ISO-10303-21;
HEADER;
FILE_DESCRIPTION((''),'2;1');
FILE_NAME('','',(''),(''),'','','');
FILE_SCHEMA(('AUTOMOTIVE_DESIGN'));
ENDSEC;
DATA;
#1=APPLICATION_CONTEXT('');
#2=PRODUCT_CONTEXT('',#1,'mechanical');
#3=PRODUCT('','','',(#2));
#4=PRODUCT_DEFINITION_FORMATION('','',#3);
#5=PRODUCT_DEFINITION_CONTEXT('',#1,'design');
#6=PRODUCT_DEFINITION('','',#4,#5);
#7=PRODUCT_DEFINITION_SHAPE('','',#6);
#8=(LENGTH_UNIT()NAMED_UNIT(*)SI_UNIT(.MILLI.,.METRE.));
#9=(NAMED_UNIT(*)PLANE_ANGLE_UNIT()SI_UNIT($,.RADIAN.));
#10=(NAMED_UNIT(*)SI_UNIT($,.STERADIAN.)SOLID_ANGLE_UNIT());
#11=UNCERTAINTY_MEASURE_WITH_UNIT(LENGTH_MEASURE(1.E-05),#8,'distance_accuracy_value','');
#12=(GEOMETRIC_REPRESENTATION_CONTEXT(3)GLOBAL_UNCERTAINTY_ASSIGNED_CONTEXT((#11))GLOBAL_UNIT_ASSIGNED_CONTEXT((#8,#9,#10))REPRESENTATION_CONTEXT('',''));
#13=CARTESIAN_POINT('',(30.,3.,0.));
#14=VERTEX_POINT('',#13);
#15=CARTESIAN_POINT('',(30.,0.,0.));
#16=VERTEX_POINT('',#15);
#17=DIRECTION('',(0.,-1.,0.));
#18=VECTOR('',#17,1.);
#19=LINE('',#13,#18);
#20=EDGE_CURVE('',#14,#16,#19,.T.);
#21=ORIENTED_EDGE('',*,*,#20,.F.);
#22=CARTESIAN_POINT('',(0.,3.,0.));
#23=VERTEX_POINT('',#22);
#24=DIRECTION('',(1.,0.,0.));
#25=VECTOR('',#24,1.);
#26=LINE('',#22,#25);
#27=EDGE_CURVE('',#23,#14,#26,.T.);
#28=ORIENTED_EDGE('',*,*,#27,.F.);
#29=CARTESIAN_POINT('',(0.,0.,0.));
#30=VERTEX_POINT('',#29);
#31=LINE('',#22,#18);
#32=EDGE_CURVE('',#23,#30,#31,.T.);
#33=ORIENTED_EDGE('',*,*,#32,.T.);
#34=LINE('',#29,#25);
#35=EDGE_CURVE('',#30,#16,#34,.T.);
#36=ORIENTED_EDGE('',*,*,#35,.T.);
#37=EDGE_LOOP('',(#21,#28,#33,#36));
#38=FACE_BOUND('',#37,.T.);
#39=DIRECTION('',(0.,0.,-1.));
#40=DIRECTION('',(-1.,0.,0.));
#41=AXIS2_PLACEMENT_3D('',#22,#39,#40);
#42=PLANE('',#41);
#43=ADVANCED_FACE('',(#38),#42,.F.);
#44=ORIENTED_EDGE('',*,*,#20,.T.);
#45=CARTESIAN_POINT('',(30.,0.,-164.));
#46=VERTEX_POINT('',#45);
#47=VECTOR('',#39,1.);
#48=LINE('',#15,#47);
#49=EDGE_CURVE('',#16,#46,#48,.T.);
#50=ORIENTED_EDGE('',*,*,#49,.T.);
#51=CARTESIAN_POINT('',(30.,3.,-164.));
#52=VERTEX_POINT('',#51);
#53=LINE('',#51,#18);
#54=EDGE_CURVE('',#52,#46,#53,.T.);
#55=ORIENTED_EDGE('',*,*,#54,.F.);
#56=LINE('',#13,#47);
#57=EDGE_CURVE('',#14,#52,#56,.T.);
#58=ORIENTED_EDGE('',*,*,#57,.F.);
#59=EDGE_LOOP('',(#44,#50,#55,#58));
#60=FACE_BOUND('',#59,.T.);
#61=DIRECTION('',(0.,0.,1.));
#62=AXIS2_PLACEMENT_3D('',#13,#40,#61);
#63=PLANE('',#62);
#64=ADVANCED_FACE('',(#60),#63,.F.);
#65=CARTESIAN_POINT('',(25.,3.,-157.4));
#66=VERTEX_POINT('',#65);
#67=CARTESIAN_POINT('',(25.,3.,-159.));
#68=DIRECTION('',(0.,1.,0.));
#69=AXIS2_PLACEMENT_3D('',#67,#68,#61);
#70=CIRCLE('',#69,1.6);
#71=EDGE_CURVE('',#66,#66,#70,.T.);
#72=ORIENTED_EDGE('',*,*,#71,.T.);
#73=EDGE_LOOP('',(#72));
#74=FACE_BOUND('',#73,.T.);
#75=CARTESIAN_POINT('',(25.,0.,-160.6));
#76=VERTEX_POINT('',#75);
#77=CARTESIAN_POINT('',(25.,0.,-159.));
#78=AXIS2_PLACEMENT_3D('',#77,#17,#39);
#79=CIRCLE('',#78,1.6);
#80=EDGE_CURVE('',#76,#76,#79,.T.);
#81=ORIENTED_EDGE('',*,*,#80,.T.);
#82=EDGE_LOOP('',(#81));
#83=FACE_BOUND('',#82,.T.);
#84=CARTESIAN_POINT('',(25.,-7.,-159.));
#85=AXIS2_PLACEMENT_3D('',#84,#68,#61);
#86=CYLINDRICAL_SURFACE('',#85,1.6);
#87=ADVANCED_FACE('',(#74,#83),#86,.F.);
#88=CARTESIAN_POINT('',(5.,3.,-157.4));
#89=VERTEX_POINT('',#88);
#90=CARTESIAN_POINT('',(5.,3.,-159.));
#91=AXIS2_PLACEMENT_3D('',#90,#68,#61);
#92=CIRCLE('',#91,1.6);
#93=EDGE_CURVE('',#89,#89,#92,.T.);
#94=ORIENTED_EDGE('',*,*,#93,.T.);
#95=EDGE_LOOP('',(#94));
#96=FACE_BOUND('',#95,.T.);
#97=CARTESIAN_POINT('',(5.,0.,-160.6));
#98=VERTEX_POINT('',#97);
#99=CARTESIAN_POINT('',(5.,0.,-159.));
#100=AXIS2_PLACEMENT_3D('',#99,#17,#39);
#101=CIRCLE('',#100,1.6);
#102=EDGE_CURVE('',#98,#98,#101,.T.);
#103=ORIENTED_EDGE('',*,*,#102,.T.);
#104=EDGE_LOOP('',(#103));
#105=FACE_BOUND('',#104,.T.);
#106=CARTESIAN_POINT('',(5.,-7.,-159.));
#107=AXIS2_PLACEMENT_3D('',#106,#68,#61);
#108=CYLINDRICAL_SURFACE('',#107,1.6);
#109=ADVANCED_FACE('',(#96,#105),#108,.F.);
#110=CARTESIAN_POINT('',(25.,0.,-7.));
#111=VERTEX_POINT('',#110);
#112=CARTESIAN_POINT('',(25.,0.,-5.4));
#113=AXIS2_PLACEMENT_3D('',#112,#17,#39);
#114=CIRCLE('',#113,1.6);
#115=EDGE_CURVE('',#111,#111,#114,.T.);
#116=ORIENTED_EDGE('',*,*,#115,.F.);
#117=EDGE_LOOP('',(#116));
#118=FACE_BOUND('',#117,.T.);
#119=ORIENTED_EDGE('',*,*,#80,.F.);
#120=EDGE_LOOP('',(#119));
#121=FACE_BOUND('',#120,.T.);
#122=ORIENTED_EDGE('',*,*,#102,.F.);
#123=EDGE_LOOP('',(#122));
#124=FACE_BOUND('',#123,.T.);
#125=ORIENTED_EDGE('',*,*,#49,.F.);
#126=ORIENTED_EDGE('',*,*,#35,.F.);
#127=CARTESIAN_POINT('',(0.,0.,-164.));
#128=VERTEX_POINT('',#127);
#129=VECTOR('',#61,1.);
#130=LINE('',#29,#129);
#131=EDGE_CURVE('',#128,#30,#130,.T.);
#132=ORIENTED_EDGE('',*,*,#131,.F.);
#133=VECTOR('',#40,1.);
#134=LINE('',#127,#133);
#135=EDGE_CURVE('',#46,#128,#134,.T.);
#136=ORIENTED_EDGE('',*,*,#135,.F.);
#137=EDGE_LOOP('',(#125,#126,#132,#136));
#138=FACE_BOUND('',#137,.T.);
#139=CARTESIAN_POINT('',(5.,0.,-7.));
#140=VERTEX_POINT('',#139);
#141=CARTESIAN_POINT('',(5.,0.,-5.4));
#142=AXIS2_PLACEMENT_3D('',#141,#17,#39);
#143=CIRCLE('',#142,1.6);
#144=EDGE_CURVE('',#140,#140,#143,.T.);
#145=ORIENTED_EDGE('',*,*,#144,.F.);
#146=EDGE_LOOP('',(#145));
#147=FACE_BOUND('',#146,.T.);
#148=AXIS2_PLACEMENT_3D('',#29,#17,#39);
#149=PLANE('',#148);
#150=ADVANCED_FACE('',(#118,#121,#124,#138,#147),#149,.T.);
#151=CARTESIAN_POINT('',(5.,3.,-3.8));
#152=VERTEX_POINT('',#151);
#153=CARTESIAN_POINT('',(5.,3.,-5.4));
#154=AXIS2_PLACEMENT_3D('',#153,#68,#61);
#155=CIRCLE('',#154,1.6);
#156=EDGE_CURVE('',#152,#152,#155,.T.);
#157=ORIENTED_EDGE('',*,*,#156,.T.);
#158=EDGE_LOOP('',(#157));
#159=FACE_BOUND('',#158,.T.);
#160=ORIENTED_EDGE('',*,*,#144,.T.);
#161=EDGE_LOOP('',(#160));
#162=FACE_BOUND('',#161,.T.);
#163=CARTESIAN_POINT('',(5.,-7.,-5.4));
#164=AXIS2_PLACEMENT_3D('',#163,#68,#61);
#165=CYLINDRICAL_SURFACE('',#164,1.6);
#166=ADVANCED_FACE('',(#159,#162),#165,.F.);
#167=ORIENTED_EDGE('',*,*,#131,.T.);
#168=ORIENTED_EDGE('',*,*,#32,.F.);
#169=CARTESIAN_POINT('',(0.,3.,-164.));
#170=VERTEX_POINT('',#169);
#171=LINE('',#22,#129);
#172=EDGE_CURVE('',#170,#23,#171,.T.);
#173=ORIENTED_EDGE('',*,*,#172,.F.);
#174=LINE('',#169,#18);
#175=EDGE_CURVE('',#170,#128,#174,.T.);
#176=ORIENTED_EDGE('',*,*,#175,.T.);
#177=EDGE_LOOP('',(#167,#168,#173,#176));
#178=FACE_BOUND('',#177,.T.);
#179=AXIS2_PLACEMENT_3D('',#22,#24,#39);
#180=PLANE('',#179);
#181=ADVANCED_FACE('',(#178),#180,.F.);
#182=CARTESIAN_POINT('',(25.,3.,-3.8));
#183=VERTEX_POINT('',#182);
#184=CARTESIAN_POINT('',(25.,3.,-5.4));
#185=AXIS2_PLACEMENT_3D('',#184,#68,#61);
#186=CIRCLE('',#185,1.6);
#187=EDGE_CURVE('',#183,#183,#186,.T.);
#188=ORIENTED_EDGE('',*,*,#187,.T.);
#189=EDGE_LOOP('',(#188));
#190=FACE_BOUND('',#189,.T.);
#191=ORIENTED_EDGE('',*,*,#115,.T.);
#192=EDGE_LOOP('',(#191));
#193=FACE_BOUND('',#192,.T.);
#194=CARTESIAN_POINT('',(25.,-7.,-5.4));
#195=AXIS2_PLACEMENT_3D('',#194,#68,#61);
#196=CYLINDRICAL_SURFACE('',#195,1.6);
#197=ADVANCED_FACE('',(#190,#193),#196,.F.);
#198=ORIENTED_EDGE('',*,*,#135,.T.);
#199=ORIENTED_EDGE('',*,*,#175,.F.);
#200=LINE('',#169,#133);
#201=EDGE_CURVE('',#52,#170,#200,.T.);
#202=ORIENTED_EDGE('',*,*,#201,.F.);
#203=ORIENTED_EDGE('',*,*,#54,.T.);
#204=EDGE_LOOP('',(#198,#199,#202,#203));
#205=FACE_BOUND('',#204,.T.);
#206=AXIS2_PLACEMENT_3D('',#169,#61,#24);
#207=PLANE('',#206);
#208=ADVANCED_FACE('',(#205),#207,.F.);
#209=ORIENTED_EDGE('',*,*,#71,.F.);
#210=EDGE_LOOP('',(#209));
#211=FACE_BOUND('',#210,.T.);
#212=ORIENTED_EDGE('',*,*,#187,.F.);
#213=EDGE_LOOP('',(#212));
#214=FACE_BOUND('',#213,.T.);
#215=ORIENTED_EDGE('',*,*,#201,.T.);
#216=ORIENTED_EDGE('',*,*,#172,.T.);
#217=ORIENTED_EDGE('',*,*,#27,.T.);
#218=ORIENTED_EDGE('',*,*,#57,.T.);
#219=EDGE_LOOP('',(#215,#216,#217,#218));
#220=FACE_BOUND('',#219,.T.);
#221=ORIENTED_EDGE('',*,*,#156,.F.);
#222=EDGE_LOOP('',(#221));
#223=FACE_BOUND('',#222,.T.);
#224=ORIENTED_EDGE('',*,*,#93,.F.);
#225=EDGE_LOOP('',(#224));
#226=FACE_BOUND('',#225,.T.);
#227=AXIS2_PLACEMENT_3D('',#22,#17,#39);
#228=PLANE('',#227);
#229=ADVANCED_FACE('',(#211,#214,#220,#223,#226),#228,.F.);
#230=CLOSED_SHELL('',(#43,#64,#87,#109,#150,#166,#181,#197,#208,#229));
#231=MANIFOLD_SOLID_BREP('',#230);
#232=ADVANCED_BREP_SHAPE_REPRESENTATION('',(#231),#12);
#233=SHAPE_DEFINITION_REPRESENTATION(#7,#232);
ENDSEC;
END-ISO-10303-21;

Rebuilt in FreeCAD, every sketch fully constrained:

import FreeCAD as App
import Part
import Sketcher


def add_polygon(sketch, points):
    """Adds a closed chain of lines whose ends are joined by coincident constraints."""
    first, n = sketch.GeometryCount, len(points)
    for a, b in zip(points, points[1:] + points[:1]):
        sketch.addGeometry(Part.LineSegment(App.Vector(*a, 0), App.Vector(*b, 0)), False)
    for i in range(n):
        sketch.addConstraint(Sketcher.Constraint("Coincident", first + i, 2, first + (i + 1) % n, 1))

doc = App.newDocument("Part")
params = doc.addObject("Spreadsheet::Sheet", "Params")
for row, (alias, value) in enumerate([
    ("sketch1_width", "30 mm"),
    ("sketch1_height", "164 mm"),
    ("pad1_length", "3 mm"),
    ("sketch2_diameter", "3.2 mm"),
    ("pocket1_length", "10 mm"),
], start=1):
    params.set(f"A{row}", alias)
    params.set(f"B{row}", "=" + value)
    params.setAlias(f"B{row}", alias)

body = doc.addObject("PartDesign::Body", "Body")

sketch1 = doc.addObject("Sketcher::SketchObject", "Sketch")
body.addObject(sketch1)
sketch1.AttachmentSupport = (doc.XZ_Plane, [""])
sketch1.MapMode = "FlatFace"
add_polygon(sketch1, [(0, -164), (0, 0), (30, 0), (30, -164)])
sketch1.addConstraint(Sketcher.Constraint("Vertical", 0))
sketch1.addConstraint(Sketcher.Constraint("Horizontal", 1))
sketch1.addConstraint(Sketcher.Constraint("Vertical", 2))
sketch1.addConstraint(Sketcher.Constraint("Horizontal", 3))
sketch1.addConstraint(Sketcher.Constraint("Coincident", 0, 2, -1, 1))
sketch1.addConstraint(Sketcher.Constraint("DistanceX", 1, 1, 1, 2, 30.0))
sketch1.addConstraint(Sketcher.Constraint("DistanceY", 0, 1, 0, 2, 164.0))
sketch1.setExpression("Constraints[9]", "Params.sketch1_width")
sketch1.setExpression("Constraints[10]", "Params.sketch1_height")
pad1 = doc.addObject("PartDesign::Pad", "Pad")
body.addObject(pad1)
pad1.Profile = sketch1
pad1.setExpression("Length", "Params.pad1_length")
pad1.Reversed = True

sketch2 = doc.addObject("Sketcher::SketchObject", "Sketch001")
body.addObject(sketch2)
sketch2.AttachmentSupport = (doc.XZ_Plane, [""])
sketch2.MapMode = "FlatFace"
sketch2.AttachmentOffset = App.Placement(App.Vector(0, 0, -3), App.Rotation())
sketch2.addGeometry(Part.Circle(App.Vector(25, -159, 0), App.Vector(0, 0, 1), 1.6), False)
sketch2.addGeometry(Part.Circle(App.Vector(25, -5.4, 0), App.Vector(0, 0, 1), 1.6), False)
sketch2.addGeometry(Part.Circle(App.Vector(5, -159, 0), App.Vector(0, 0, 1), 1.6), False)
sketch2.addGeometry(Part.Circle(App.Vector(5, -5.4, 0), App.Vector(0, 0, 1), 1.6), False)
sketch2.addConstraint(Sketcher.Constraint("Equal", 0, 1))
sketch2.addConstraint(Sketcher.Constraint("Equal", 1, 2))
sketch2.addConstraint(Sketcher.Constraint("Equal", 2, 3))
sketch2.addConstraint(Sketcher.Constraint("Horizontal", 0, 3, 2, 3))
sketch2.addConstraint(Sketcher.Constraint("Horizontal", 1, 3, 3, 3))
sketch2.addConstraint(Sketcher.Constraint("Vertical", 0, 3, 1, 3))
sketch2.addConstraint(Sketcher.Constraint("Vertical", 2, 3, 3, 3))
sketch2.addConstraint(Sketcher.Constraint("Diameter", 0, 3.2))
sketch2.addConstraint(Sketcher.Constraint("DistanceX", -1, 1, 0, 3, 25.0))
sketch2.addConstraint(Sketcher.Constraint("DistanceY", 0, 3, -1, 1, 159.0))
sketch2.addConstraint(Sketcher.Constraint("DistanceX", -1, 1, 2, 3, 5.0))
sketch2.addConstraint(Sketcher.Constraint("DistanceY", 1, 3, -1, 1, 5.4))
sketch2.setExpression("Constraints[7]", "Params.sketch2_diameter")
pocket1 = doc.addObject("PartDesign::Pocket", "Pocket")
body.addObject(pocket1)
pocket1.Profile = sketch2
pocket1.setExpression("Length", "Params.pocket1_length")
pocket1.Reversed = True

doc.recompute()
